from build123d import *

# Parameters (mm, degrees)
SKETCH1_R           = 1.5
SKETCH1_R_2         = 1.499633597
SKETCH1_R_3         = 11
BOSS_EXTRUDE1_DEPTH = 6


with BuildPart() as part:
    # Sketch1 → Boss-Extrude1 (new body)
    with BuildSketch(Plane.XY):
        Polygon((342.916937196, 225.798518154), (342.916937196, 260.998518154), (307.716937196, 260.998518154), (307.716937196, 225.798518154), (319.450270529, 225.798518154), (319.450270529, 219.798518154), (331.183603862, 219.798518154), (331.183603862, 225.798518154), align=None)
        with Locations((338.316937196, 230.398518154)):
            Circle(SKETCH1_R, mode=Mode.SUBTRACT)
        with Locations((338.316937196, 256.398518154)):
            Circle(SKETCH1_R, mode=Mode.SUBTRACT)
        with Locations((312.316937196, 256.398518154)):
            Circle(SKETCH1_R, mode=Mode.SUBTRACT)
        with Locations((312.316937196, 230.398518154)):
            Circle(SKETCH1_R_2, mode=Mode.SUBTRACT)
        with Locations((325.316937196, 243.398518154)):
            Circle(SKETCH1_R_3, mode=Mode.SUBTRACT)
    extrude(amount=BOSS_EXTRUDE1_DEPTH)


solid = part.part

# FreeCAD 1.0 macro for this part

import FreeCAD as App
import Part
import Sketcher

V = App.Vector
Q = App.Units.Quantity

doc = App.newDocument("Part")
params = doc.addObject("Spreadsheet::Sheet", "Params")
for row, (alias, value) in enumerate([
    ("sketch1_diameter", "3 mm"),
    ("sketch1_diameter2", "22 mm"),
    ("sketch1_height", "6 mm"),
    ("sketch1_width", "35.2 mm"),
    ("pad1_length", "6 mm"),
], start=1):
    params.set(f"A{row}", alias)
    params.set(f"B{row}", "=" + value)
    params.setAlias(f"B{row}", alias)

body = doc.addObject("PartDesign::Body", "Body")

# Sketch on XY plane
sketch1 = doc.addObject("Sketcher::SketchObject", "Sketch")
body.addObject(sketch1)
sketch1.AttachmentSupport = (doc.XY_Plane, [""])
sketch1.MapMode = "FlatFace"
sketch1.addGeometry(Part.LineSegment(V(342.9, 225.8, 0), V(342.9, 261, 0)), False)
sketch1.addGeometry(Part.LineSegment(V(342.9, 261, 0), V(307.7, 261, 0)), False)
sketch1.addGeometry(Part.LineSegment(V(307.7, 261, 0), V(307.7, 225.8, 0)), False)
sketch1.addGeometry(Part.LineSegment(V(307.7, 225.8, 0), V(319.5, 225.8, 0)), False)
sketch1.addGeometry(Part.LineSegment(V(319.5, 225.8, 0), V(319.5, 219.8, 0)), False)
sketch1.addGeometry(Part.LineSegment(V(319.5, 219.8, 0), V(331.2, 219.8, 0)), False)
sketch1.addGeometry(Part.LineSegment(V(331.2, 219.8, 0), V(331.2, 225.8, 0)), False)
sketch1.addGeometry(Part.LineSegment(V(331.2, 225.8, 0), V(342.9, 225.8, 0)), False)
sketch1.addGeometry(Part.Circle(V(312.3, 230.4, 0), V(0, 0, 1), 1.5), False)
sketch1.addGeometry(Part.Circle(V(338.3, 230.4, 0), V(0, 0, 1), 1.5), False)
sketch1.addGeometry(Part.Circle(V(312.3, 256.4, 0), V(0, 0, 1), 1.5), False)
sketch1.addGeometry(Part.Circle(V(325.3, 243.4, 0), V(0, 0, 1), 11), False)
sketch1.addGeometry(Part.Circle(V(338.3, 256.4, 0), V(0, 0, 1), 1.5), False)
sketch1.addConstraint(Sketcher.Constraint("Coincident", 0, 2, 1, 1))
sketch1.addConstraint(Sketcher.Constraint("Coincident", 1, 2, 2, 1))
sketch1.addConstraint(Sketcher.Constraint("Coincident", 2, 2, 3, 1))
sketch1.addConstraint(Sketcher.Constraint("Coincident", 3, 2, 4, 1))
sketch1.addConstraint(Sketcher.Constraint("Coincident", 4, 2, 5, 1))
sketch1.addConstraint(Sketcher.Constraint("Coincident", 5, 2, 6, 1))
sketch1.addConstraint(Sketcher.Constraint("Coincident", 6, 2, 7, 1))
sketch1.addConstraint(Sketcher.Constraint("Coincident", 7, 2, 0, 1))
sketch1.addConstraint(Sketcher.Constraint("Vertical", 0))
sketch1.addConstraint(Sketcher.Constraint("Horizontal", 1))
sketch1.addConstraint(Sketcher.Constraint("Vertical", 2))
sketch1.addConstraint(Sketcher.Constraint("Horizontal", 3))
sketch1.addConstraint(Sketcher.Constraint("Vertical", 4))
sketch1.addConstraint(Sketcher.Constraint("Horizontal", 5))
sketch1.addConstraint(Sketcher.Constraint("Vertical", 6))
sketch1.addConstraint(Sketcher.Constraint("Horizontal", 7))
sketch1.addConstraint(Sketcher.Constraint("Equal", 9, 10))
sketch1.addConstraint(Sketcher.Constraint("Equal", 10, 12))
sketch1.addConstraint(Sketcher.Constraint("Horizontal", 8, 3, 9, 3))
sketch1.addConstraint(Sketcher.Constraint("Horizontal", 10, 3, 12, 3))
sketch1.addConstraint(Sketcher.Constraint("Horizontal", 3, 2, 6, 2))
sketch1.addConstraint(Sketcher.Constraint("Vertical", 8, 3, 10, 3))
sketch1.addConstraint(Sketcher.Constraint("Vertical", 9, 3, 12, 3))
sketch1.addConstraint(Sketcher.Constraint("Equal", 3, 5))
sketch1.addConstraint(Sketcher.Constraint("Equal", 5, 7))
sketch1.addConstraint(Sketcher.Constraint("Equal", 1, 0))
sketch1.addConstraint(Sketcher.Constraint("Diameter", 9, Q("3 mm")))
sketch1.addConstraint(Sketcher.Constraint("Diameter", 11, Q("22 mm")))
sketch1.addConstraint(Sketcher.Constraint("DistanceY", 4, 2, 4, 1, Q("6 mm")))
sketch1.addConstraint(Sketcher.Constraint("DistanceX", 1, 2, 1, 1, Q("35.2 mm")))
sketch1.addConstraint(Sketcher.Constraint("DistanceX", 8, 3, 9, 3, Q("26 mm")))
sketch1.addConstraint(Sketcher.Constraint("DistanceY", 8, 3, 10, 3, Q("26 mm")))
sketch1.addConstraint(Sketcher.Constraint("DistanceX", 8, 3, 11, 3, Q("13 mm")))
sketch1.addConstraint(Sketcher.Constraint("DistanceY", 8, 3, 11, 3, Q("13 mm")))
sketch1.addConstraint(Sketcher.Constraint("DistanceX", 12, 3, 0, 2, Q("4.6 mm")))
sketch1.addConstraint(Sketcher.Constraint("DistanceY", 12, 3, 0, 2, Q("4.6 mm")))
sketch1.addConstraint(Sketcher.Constraint("Diameter", 8, Q("2.999267 mm")))
sketch1.addConstraint(Sketcher.Constraint("DistanceY", -1, 1, 8, 3, Q("230.398518 mm")))
sketch1.addConstraint(Sketcher.Constraint("DistanceX", -1, 1, 3, 2, Q("319.450271 mm")))
sketch1.setExpression("Constraints[26]", "Params.sketch1_diameter")
sketch1.setExpression("Constraints[27]", "Params.sketch1_diameter2")
sketch1.setExpression("Constraints[28]", "Params.sketch1_height")
sketch1.setExpression("Constraints[29]", "Params.sketch1_width")
pad1 = doc.addObject("PartDesign::Pad", "Pad")
body.addObject(pad1)
pad1.Profile = sketch1
pad1.setExpression("Length", "Params.pad1_length")

doc.recompute()
